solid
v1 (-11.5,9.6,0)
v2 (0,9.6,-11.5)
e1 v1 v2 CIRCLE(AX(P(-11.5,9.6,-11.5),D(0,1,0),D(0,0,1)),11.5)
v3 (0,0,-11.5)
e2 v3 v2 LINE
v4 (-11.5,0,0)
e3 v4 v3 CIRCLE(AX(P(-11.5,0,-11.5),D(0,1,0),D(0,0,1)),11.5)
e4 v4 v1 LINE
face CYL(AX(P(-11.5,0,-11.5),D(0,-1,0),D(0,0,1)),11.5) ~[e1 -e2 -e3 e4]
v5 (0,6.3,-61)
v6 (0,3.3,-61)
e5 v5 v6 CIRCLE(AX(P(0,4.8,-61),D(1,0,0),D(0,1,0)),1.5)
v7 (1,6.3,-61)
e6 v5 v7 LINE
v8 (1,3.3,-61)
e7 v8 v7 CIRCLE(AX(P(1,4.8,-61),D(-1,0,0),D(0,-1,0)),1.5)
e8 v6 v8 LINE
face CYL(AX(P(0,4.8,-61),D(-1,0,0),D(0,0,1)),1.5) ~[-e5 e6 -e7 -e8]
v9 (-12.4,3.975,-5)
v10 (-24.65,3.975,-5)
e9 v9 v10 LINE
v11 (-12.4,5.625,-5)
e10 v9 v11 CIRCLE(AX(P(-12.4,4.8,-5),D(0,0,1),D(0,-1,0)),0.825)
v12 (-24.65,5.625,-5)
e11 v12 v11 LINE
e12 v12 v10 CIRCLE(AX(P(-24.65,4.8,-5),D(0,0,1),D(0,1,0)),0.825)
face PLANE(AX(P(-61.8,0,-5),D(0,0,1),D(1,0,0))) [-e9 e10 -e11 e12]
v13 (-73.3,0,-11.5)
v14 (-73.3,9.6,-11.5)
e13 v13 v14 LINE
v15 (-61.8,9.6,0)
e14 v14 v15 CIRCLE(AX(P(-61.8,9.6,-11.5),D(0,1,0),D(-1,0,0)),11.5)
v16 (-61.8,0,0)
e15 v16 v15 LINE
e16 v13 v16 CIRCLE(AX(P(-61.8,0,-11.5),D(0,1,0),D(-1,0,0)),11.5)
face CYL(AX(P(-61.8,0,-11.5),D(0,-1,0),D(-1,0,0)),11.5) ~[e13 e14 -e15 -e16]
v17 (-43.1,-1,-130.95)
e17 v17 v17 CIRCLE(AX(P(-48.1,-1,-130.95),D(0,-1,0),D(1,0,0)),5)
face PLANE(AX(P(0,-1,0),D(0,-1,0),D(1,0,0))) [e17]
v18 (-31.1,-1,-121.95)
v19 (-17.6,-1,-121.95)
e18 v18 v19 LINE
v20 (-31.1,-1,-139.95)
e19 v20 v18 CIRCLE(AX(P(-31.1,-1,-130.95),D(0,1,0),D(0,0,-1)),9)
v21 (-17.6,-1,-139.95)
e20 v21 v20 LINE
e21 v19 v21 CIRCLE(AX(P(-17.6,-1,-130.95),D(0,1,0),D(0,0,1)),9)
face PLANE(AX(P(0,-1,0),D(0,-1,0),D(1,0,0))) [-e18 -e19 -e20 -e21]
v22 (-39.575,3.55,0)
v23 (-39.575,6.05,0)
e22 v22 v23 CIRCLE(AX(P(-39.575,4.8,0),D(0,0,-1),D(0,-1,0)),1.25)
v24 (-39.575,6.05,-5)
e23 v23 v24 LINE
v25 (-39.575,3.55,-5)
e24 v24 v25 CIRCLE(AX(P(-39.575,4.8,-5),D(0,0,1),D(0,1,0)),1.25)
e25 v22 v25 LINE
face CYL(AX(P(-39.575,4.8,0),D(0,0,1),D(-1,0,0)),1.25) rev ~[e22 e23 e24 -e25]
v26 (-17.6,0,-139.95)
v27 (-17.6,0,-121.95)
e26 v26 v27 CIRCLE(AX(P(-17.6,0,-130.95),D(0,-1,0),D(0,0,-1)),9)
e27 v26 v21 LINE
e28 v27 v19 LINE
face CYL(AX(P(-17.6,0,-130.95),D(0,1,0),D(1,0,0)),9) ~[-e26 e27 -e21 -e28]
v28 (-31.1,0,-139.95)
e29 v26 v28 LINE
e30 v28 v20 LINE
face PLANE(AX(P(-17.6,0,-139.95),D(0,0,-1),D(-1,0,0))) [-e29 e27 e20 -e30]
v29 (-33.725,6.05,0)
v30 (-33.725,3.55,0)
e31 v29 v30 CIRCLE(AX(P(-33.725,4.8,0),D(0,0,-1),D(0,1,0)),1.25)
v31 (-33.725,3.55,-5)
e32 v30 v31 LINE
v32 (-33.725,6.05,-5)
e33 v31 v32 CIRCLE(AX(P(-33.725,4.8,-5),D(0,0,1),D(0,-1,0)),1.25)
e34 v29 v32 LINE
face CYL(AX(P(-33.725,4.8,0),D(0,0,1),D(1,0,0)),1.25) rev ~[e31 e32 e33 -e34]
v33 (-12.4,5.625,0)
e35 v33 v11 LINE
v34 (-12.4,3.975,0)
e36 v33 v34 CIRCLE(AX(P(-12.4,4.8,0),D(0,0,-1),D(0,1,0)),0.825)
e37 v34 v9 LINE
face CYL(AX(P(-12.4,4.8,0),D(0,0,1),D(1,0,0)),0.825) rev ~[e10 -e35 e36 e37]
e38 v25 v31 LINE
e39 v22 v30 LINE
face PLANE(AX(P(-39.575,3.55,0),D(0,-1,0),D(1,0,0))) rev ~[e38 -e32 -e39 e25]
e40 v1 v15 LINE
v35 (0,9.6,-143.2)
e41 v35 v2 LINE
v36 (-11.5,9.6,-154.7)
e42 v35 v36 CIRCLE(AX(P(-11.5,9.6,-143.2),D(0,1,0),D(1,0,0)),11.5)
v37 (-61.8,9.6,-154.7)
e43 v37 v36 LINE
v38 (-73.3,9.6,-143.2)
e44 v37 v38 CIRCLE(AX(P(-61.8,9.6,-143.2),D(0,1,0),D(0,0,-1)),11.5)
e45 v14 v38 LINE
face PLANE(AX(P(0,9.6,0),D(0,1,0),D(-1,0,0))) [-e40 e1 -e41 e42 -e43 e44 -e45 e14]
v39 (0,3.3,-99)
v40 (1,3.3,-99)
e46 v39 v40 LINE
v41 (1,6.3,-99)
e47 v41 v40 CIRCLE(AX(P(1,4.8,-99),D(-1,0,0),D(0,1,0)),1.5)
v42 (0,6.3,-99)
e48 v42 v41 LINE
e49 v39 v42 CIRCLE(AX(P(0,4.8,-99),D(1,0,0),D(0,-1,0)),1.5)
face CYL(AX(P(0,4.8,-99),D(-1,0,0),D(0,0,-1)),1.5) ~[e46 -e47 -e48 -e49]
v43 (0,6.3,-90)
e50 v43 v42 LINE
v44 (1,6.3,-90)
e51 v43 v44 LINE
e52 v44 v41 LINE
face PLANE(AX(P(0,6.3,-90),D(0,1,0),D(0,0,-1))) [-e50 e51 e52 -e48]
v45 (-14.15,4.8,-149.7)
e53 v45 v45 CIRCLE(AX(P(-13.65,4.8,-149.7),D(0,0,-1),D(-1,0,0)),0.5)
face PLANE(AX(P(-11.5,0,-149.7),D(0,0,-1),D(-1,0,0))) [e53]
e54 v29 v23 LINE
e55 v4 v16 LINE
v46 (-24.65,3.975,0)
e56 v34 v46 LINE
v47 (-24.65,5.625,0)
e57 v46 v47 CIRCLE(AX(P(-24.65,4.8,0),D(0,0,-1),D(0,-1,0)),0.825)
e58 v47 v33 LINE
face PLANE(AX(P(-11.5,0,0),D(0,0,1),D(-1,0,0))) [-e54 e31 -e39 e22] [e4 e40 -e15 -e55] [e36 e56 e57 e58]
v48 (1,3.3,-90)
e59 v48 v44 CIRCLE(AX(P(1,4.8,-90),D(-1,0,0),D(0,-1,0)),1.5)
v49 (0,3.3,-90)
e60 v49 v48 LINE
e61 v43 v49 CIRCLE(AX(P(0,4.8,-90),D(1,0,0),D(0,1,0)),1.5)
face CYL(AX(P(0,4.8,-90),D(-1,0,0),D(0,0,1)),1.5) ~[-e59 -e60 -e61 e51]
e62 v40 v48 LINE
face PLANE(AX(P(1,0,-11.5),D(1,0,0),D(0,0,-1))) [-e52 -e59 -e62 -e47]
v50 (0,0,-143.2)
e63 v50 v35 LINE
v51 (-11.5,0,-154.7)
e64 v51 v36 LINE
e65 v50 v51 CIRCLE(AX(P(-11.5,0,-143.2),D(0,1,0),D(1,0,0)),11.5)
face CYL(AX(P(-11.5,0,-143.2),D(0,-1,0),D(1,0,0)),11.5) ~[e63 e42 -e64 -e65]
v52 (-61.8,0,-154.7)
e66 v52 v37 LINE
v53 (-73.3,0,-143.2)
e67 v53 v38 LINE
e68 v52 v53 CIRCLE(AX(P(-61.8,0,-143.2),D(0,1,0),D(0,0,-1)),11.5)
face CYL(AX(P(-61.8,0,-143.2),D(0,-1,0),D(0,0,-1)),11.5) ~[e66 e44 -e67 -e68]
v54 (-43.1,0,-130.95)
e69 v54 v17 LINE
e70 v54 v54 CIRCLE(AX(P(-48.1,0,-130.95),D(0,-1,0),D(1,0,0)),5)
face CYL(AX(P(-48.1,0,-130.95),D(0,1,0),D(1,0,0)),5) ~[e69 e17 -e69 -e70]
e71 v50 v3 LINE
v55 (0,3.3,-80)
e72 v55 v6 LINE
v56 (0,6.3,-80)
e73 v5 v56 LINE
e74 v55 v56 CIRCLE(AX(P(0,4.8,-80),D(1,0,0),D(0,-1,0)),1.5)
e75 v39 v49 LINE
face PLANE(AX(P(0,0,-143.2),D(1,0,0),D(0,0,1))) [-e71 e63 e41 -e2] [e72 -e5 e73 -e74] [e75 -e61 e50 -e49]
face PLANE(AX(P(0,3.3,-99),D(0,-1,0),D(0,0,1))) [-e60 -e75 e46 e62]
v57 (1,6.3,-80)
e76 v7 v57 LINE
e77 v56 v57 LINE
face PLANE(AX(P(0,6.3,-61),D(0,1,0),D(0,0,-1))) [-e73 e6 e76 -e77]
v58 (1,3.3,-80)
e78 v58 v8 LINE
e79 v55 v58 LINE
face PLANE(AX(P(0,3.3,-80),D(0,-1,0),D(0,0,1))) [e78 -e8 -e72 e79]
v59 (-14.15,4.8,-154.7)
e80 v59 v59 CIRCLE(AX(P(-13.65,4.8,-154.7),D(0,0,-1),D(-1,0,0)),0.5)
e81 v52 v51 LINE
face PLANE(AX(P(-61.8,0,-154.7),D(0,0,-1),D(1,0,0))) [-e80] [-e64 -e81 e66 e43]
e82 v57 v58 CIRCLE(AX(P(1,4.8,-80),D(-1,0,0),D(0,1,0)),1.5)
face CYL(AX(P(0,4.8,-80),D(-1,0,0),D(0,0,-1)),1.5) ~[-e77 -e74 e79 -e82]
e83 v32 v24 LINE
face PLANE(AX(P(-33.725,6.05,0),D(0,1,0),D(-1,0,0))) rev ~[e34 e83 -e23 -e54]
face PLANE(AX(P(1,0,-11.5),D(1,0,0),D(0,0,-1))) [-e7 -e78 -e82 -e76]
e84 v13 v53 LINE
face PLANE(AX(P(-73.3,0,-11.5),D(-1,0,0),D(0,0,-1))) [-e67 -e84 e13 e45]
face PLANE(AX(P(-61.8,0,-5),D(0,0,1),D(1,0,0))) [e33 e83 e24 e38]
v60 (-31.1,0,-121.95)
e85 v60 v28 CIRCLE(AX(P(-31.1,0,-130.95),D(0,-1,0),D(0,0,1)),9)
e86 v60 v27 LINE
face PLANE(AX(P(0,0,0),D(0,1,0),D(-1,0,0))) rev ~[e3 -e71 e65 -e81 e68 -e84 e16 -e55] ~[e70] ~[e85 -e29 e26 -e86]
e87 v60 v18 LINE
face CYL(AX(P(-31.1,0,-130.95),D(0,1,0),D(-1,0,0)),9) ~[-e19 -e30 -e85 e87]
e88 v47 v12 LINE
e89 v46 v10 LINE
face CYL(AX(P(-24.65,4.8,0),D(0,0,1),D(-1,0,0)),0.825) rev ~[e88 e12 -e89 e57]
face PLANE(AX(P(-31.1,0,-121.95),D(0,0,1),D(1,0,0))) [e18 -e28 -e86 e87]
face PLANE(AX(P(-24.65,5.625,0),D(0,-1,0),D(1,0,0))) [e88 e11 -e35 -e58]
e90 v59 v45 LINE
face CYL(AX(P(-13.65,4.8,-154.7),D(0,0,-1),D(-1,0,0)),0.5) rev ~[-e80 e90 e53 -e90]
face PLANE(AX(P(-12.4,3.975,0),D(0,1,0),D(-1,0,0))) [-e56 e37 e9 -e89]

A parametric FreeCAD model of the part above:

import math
import FreeCAD as App
import Part
import Sketcher
Q = App.Units.Quantity

doc = App.newDocument("Part")
body = doc.addObject("PartDesign::Body", "Body")

sketch1 = doc.addObject("Sketcher::SketchObject", "Sketch")
body.addObject(sketch1)
sketch1.AttachmentSupport = (doc.XZ_Plane, [""])
sketch1.MapMode = "FlatFace"
sketch1.addGeometry([
    Part.LineSegment(App.Vector(-62, 0, 0), App.Vector(-12, 0, 0)),
    Part.ArcOfCircle(Part.Circle(App.Vector(-12, -12, 0), App.Vector(0, 0, 1), 12), math.radians(0), math.radians(90)),
    Part.LineSegment(App.Vector(0, -12, 0), App.Vector(0, -143, 0)),
    Part.ArcOfCircle(Part.Circle(App.Vector(-12, -143, 0), App.Vector(0, 0, 1), 12), math.radians(-90), math.radians(0)),
    Part.LineSegment(App.Vector(-12, -155, 0), App.Vector(-62, -155, 0)),
    Part.ArcOfCircle(Part.Circle(App.Vector(-62, -143, 0), App.Vector(0, 0, 1), 12), math.radians(180), math.radians(270)),
    Part.LineSegment(App.Vector(-73, -143, 0), App.Vector(-73, -12, 0)),
    Part.ArcOfCircle(Part.Circle(App.Vector(-62, -12, 0), App.Vector(0, 0, 1), 12), math.radians(90), math.radians(180)),
], False)
sketch1.addConstraint([
    Sketcher.Constraint("Tangent", 0, 2, 1, 2),
    Sketcher.Constraint("Tangent", 1, 1, 2, 1),
    Sketcher.Constraint("Tangent", 2, 2, 3, 2),
    Sketcher.Constraint("Tangent", 3, 1, 4, 1),
    Sketcher.Constraint("Tangent", 4, 2, 5, 2),
    Sketcher.Constraint("Tangent", 5, 1, 6, 1),
    Sketcher.Constraint("Tangent", 6, 2, 7, 2),
    Sketcher.Constraint("Tangent", 7, 1, 0, 1),
    Sketcher.Constraint("Horizontal", 0),
    Sketcher.Constraint("Vertical", 2),
    Sketcher.Constraint("Horizontal", 4),
    Sketcher.Constraint("Vertical", 6),
    Sketcher.Constraint("Equal", 1, 3),
    Sketcher.Constraint("Equal", 3, 5),
    Sketcher.Constraint("Equal", 5, 7),
    Sketcher.Constraint("PointOnObject", 0, 2, -1),
    Sketcher.Constraint("PointOnObject", 1, 1, -2),
    Sketcher.Constraint("Radius", 1, Q("11.5 mm")),
    Sketcher.Constraint("DistanceY", 3, 1, -1, 1, Q("154.7 mm")),
    Sketcher.Constraint("DistanceX", 5, 1, -1, 1, Q("73.3 mm")),
])
pad1 = doc.addObject("PartDesign::Pad", "Pad")
body.addObject(pad1)
pad1.Profile = sketch1
pad1.Length = 9.6
pad1.Reversed = True

sketch2 = doc.addObject("Sketcher::SketchObject", "Sketch001")
body.addObject(sketch2)
sketch2.AttachmentSupport = (doc.XY_Plane, [""])
sketch2.MapMode = "FlatFace"
sketch2.addGeometry([
    Part.ArcOfCircle(Part.Circle(App.Vector(-33.7, 4.8, 0), App.Vector(0, 0, 1), 1.2), math.radians(-90), math.radians(90)),
    Part.LineSegment(App.Vector(-33.7, 6, 0), App.Vector(-39.6, 6, 0)),
    Part.ArcOfCircle(Part.Circle(App.Vector(-39.6, 4.8, 0), App.Vector(0, 0, 1), 1.2), math.radians(90), math.radians(270)),
    Part.LineSegment(App.Vector(-39.6, 3.5, 0), App.Vector(-33.7, 3.5, 0)),
    Part.LineSegment(App.Vector(-12.4, 5.6, 0), App.Vector(-24.6, 5.6, 0)),
    Part.ArcOfCircle(Part.Circle(App.Vector(-24.6, 4.8, 0), App.Vector(0, 0, 1), 0.8), math.radians(90), math.radians(270)),
    Part.LineSegment(App.Vector(-24.6, 4, 0), App.Vector(-12.4, 4, 0)),
    Part.ArcOfCircle(Part.Circle(App.Vector(-12.4, 4.8, 0), App.Vector(0, 0, 1), 0.8), math.radians(-90), math.radians(90)),
], False)
sketch2.addConstraint([
    Sketcher.Constraint("Tangent", 0, 2, 1, 1),
    Sketcher.Constraint("Tangent", 1, 2, 2, 1),
    Sketcher.Constraint("Tangent", 2, 2, 3, 1),
    Sketcher.Constraint("Tangent", 3, 2, 0, 1),
    Sketcher.Constraint("Tangent", 4, 2, 5, 1),
    Sketcher.Constraint("Tangent", 5, 2, 6, 1),
    Sketcher.Constraint("Tangent", 6, 2, 7, 1),
    Sketcher.Constraint("Tangent", 7, 2, 4, 1),
    Sketcher.Constraint("Horizontal", 1),
    Sketcher.Constraint("Horizontal", 3),
    Sketcher.Constraint("Horizontal", 4),
    Sketcher.Constraint("Horizontal", 6),
    Sketcher.Constraint("Horizontal", 2, 3, 5, 3),
    Sketcher.Constraint("Radius", 0, Q("1.25 mm")),
    Sketcher.Constraint("Radius", 5, Q("0.825 mm")),
    Sketcher.Constraint("DistanceX", 1, 2, 1, 1, Q("5.85 mm")),
    Sketcher.Constraint("DistanceX", 4, 2, 4, 1, Q("12.25 mm")),
    Sketcher.Constraint("DistanceY", -1, 1, 0, 3, Q("4.8 mm")),
    Sketcher.Constraint("DistanceX", 7, 3, -1, 1, Q("12.4 mm")),
    Sketcher.Constraint("DistanceX", 0, 3, -1, 1, Q("33.725 mm")),
])
pocket1 = doc.addObject("PartDesign::Pocket", "Pocket")
body.addObject(pocket1)
pocket1.Profile = sketch2
pocket1.Length = 5

sketch3 = doc.addObject("Sketcher::SketchObject", "Sketch002")
body.addObject(sketch3)
sketch3.AttachmentSupport = (doc.YZ_Plane, [""])
sketch3.MapMode = "FlatFace"
sketch3.addGeometry([
    Part.LineSegment(App.Vector(6.3, -99, 0), App.Vector(6.3, -90, 0)),
    Part.ArcOfCircle(Part.Circle(App.Vector(4.8, -90, 0), App.Vector(0, 0, 1), 1.5), math.radians(0), math.radians(180)),
    Part.LineSegment(App.Vector(3.3, -90, 0), App.Vector(3.3, -99, 0)),
    Part.ArcOfCircle(Part.Circle(App.Vector(4.8, -99, 0), App.Vector(0, 0, 1), 1.5), math.radians(180), math.radians(360)),
    Part.LineSegment(App.Vector(6.3, -80, 0), App.Vector(6.3, -61, 0)),
    Part.ArcOfCircle(Part.Circle(App.Vector(4.8, -61, 0), App.Vector(0, 0, 1), 1.5), math.radians(0), math.radians(180)),
    Part.LineSegment(App.Vector(3.3, -61, 0), App.Vector(3.3, -80, 0)),
    Part.ArcOfCircle(Part.Circle(App.Vector(4.8, -80, 0), App.Vector(0, 0, 1), 1.5), math.radians(180), math.radians(360)),
], False)
sketch3.addConstraint([
    Sketcher.Constraint("Tangent", 0, 2, 1, 1),
    Sketcher.Constraint("Tangent", 1, 2, 2, 1),
    Sketcher.Constraint("Tangent", 2, 2, 3, 1),
    Sketcher.Constraint("Tangent", 3, 2, 0, 1),
    Sketcher.Constraint("Tangent", 4, 2, 5, 1),
    Sketcher.Constraint("Tangent", 5, 2, 6, 1),
    Sketcher.Constraint("Tangent", 6, 2, 7, 1),
    Sketcher.Constraint("Tangent", 7, 2, 4, 1),
    Sketcher.Constraint("Vertical", 0),
    Sketcher.Constraint("Vertical", 2),
    Sketcher.Constraint("Vertical", 4),
    Sketcher.Constraint("Vertical", 6),
    Sketcher.Constraint("Equal", 3, 5),
    Sketcher.Constraint("Vertical", 3, 3, 5, 3),
    Sketcher.Constraint("Radius", 1, Q("1.5 mm")),
    Sketcher.Constraint("DistanceY", 0, 1, 0, 2, Q("9 mm")),
    Sketcher.Constraint("DistanceY", 4, 1, 4, 2, Q("19 mm")),
    Sketcher.Constraint("DistanceY", 1, 3, -1, 1, Q("90 mm")),
    Sketcher.Constraint("DistanceY", 5, 3, -1, 1, Q("61 mm")),
    Sketcher.Constraint("DistanceX", -1, 1, 1, 3, Q("4.8 mm")),
])
pad2 = doc.addObject("PartDesign::Pad", "Pad001")
body.addObject(pad2)
pad2.Profile = sketch3
pad2.Length = 1

sketch4 = doc.addObject("Sketcher::SketchObject", "Sketch003")
body.addObject(sketch4)
sketch4.AttachmentSupport = (doc.XY_Plane, [""])
sketch4.MapMode = "FlatFace"
sketch4.AttachmentOffset = App.Placement(App.Vector(0, 0, -154.7), App.Rotation())
sketch4.addGeometry(Part.Circle(App.Vector(-13.7, 4.8, 0), App.Vector(0, 0, 1), 0.5), False)
sketch4.addConstraint([
    Sketcher.Constraint("Diameter", 0, Q("1 mm")),
    Sketcher.Constraint("DistanceY", -1, 1, 0, 3, Q("4.8 mm")),
    Sketcher.Constraint("DistanceX", 0, 3, -1, 1, Q("13.65 mm")),
])
pocket2 = doc.addObject("PartDesign::Pocket", "Pocket001")
body.addObject(pocket2)
pocket2.Profile = sketch4
pocket2.Length = 5
pocket2.Reversed = True

sketch5 = doc.addObject("Sketcher::SketchObject", "Sketch004")
body.addObject(sketch5)
sketch5.AttachmentSupport = (doc.XZ_Plane, [""])
sketch5.MapMode = "FlatFace"
sketch5.addGeometry([
    Part.LineSegment(App.Vector(-31, -140, 0), App.Vector(-18, -140, 0)),
    Part.ArcOfCircle(Part.Circle(App.Vector(-18, -131, 0), App.Vector(0, 0, 1), 9), math.radians(-90), math.radians(90)),
    Part.LineSegment(App.Vector(-18, -122, 0), App.Vector(-31, -122, 0)),
    Part.ArcOfCircle(Part.Circle(App.Vector(-31, -131, 0), App.Vector(0, 0, 1), 9), math.radians(90), math.radians(270)),
    Part.Circle(App.Vector(-48, -131, 0), App.Vector(0, 0, 1), 5),
], False)
sketch5.addConstraint([
    Sketcher.Constraint("Tangent", 0, 2, 1, 1),
    Sketcher.Constraint("Tangent", 1, 2, 2, 1),
    Sketcher.Constraint("Tangent", 2, 2, 3, 1),
    Sketcher.Constraint("Tangent", 3, 2, 0, 1),
    Sketcher.Constraint("Horizontal", 0),
    Sketcher.Constraint("Horizontal", 2),
    Sketcher.Constraint("Horizontal", 3, 3, 4, 3),
    Sketcher.Constraint("Diameter", 4, Q("10 mm")),
    Sketcher.Constraint("Radius", 1, Q("9 mm")),
    Sketcher.Constraint("DistanceX", 0, 1, 0, 2, Q("13.5 mm")),
    Sketcher.Constraint("DistanceX", 4, 3, 3, 3, Q("17 mm")),
    Sketcher.Constraint("DistanceX", 1, 3, -1, 1, Q("17.6 mm")),
    Sketcher.Constraint("DistanceY", 1, 3, -1, 1, Q("130.95 mm")),
])
pad3 = doc.addObject("PartDesign::Pad", "Pad002")
body.addObject(pad3)
pad3.Profile = sketch5
pad3.Length = 1

doc.recompute()
